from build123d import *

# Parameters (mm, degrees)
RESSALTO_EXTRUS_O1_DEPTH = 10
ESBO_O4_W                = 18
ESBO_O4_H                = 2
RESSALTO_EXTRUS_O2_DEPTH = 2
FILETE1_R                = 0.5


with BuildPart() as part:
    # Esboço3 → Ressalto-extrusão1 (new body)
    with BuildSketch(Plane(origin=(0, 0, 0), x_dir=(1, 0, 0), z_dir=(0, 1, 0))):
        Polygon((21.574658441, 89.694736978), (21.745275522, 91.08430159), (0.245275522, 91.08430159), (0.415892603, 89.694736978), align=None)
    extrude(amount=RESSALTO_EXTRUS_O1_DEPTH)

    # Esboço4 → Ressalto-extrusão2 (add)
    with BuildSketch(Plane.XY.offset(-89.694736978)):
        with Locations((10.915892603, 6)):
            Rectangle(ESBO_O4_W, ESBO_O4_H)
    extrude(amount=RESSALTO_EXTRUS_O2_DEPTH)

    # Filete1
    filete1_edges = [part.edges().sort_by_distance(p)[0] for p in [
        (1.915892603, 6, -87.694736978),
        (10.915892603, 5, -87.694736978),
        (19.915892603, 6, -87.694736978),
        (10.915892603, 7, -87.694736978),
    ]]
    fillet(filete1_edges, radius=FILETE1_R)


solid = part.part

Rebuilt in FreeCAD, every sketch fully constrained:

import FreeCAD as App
import Part
import Sketcher
Q = App.Units.Quantity


def edges_at(feature, points):
    """Names of the edges that pass closest to the given points."""
    edges = feature.Shape.Edges
    near = lambda p: min(range(len(edges)), key=lambda i: edges[i].distToShape(Part.Vertex(*p))[0])
    return sorted({f"Edge{near(p) + 1}" for p in points})


def add_polygon(sketch, points):
    """Adds a closed chain of lines whose ends are joined by coincident constraints."""
    first, n = sketch.GeometryCount, len(points)
    for a, b in zip(points, points[1:] + points[:1]):
        sketch.addGeometry(Part.LineSegment(App.Vector(*a, 0), App.Vector(*b, 0)), False)
    for i in range(n):
        sketch.addConstraint(Sketcher.Constraint("Coincident", first + i, 2, first + (i + 1) % n, 1))

doc = App.newDocument("Part")
params = doc.addObject("Spreadsheet::Sheet", "Params")
for row, (alias, value) in enumerate([
    ("sketch1_width", "21.5 mm"),
    ("sketch1_length", "1.4 mm"),
    ("pad1_length", "10 mm"),
    ("sketch2_width", "18 mm"),
    ("sketch2_height", "2 mm"),
    ("pad2_length", "2 mm"),
    ("fillet_radius", "0.5 mm"),
], start=1):
    params.set(f"A{row}", alias)
    params.set(f"B{row}", "=" + value)
    params.setAlias(f"B{row}", alias)

body = doc.addObject("PartDesign::Body", "Body")

# Sketch on XZ plane
sketch1 = body.newObject("Sketcher::SketchObject", "Sketch")
sketch1.AttachmentSupport = (doc.getObject("XZ_Plane"), [""])
sketch1.MapMode = "FlatFace"
add_polygon(sketch1, [(21.6, -89.7), (21.7, -91.1), (0.2, -91.1), (0.4, -89.7)])  # lines 0-3
sketch1.addConstraint(Sketcher.Constraint("Horizontal", 1))
sketch1.addConstraint(Sketcher.Constraint("Horizontal", 3))
sketch1.addConstraint(Sketcher.Constraint("Equal", 0, 2))
sketch1.addConstraint(Sketcher.Constraint("Angle", 0, Q("-83 deg")))
sketch1.addConstraint(Sketcher.Constraint("DistanceX", 1, 2, 1, 1, Q("21.5 mm")))
sketch1.addConstraint(Sketcher.Constraint("Distance", 0, Q("1.4 mm")))
sketch1.addConstraint(Sketcher.Constraint("DistanceY", 0, 2, -1, 1, Q("91.084302 mm")))
sketch1.addConstraint(Sketcher.Constraint("DistanceX", -1, 1, 3, 2, Q("21.574658 mm")))
sketch1.setExpression("Constraints[8]", "Params.sketch1_width")
sketch1.setExpression("Constraints[9]", "Params.sketch1_length")
pad1 = body.newObject("PartDesign::Pad", "Pad")
pad1.Profile = sketch1
pad1.setExpression("Length", "Params.pad1_length")
pad1.Reversed = True

# Sketch on XY plane
sketch2 = body.newObject("Sketcher::SketchObject", "Sketch001")
sketch2.AttachmentSupport = (doc.getObject("XY_Plane"), [""])
sketch2.MapMode = "FlatFace"
sketch2.AttachmentOffset = App.Placement(App.Vector(0, 0, -89.694737), App.Rotation())
add_polygon(sketch2, [(1.9, 7), (1.9, 5), (19.9, 5), (19.9, 7)])  # lines 0-3
sketch2.addConstraint(Sketcher.Constraint("Vertical", 0))
sketch2.addConstraint(Sketcher.Constraint("Horizontal", 1))
sketch2.addConstraint(Sketcher.Constraint("Vertical", 2))
sketch2.addConstraint(Sketcher.Constraint("Horizontal", 3))
sketch2.addConstraint(Sketcher.Constraint("DistanceX", 1, 1, 1, 2, Q("18 mm")))
sketch2.addConstraint(Sketcher.Constraint("DistanceY", 0, 2, 0, 1, Q("2 mm")))
sketch2.addConstraint(Sketcher.Constraint("DistanceY", -1, 1, 0, 2, Q("5 mm")))
sketch2.addConstraint(Sketcher.Constraint("DistanceX", -1, 1, 0, 2, Q("1.915893 mm")))
sketch2.setExpression("Constraints[8]", "Params.sketch2_width")
sketch2.setExpression("Constraints[9]", "Params.sketch2_height")
pad2 = body.newObject("PartDesign::Pad", "Pad001")
pad2.Profile = sketch2
pad2.setExpression("Length", "Params.pad2_length")
doc.recompute()

fillet = body.newObject("PartDesign::Fillet", "Fillet")
fillet.Base = (pad2, edges_at(pad2, [
    (1.916, 6, -87.695),
    (10.916, 5, -87.695),
    (19.916, 6, -87.695),
    (10.916, 7, -87.695),
]))
fillet.setExpression("Radius", "Params.fillet_radius")

doc.recompute()
